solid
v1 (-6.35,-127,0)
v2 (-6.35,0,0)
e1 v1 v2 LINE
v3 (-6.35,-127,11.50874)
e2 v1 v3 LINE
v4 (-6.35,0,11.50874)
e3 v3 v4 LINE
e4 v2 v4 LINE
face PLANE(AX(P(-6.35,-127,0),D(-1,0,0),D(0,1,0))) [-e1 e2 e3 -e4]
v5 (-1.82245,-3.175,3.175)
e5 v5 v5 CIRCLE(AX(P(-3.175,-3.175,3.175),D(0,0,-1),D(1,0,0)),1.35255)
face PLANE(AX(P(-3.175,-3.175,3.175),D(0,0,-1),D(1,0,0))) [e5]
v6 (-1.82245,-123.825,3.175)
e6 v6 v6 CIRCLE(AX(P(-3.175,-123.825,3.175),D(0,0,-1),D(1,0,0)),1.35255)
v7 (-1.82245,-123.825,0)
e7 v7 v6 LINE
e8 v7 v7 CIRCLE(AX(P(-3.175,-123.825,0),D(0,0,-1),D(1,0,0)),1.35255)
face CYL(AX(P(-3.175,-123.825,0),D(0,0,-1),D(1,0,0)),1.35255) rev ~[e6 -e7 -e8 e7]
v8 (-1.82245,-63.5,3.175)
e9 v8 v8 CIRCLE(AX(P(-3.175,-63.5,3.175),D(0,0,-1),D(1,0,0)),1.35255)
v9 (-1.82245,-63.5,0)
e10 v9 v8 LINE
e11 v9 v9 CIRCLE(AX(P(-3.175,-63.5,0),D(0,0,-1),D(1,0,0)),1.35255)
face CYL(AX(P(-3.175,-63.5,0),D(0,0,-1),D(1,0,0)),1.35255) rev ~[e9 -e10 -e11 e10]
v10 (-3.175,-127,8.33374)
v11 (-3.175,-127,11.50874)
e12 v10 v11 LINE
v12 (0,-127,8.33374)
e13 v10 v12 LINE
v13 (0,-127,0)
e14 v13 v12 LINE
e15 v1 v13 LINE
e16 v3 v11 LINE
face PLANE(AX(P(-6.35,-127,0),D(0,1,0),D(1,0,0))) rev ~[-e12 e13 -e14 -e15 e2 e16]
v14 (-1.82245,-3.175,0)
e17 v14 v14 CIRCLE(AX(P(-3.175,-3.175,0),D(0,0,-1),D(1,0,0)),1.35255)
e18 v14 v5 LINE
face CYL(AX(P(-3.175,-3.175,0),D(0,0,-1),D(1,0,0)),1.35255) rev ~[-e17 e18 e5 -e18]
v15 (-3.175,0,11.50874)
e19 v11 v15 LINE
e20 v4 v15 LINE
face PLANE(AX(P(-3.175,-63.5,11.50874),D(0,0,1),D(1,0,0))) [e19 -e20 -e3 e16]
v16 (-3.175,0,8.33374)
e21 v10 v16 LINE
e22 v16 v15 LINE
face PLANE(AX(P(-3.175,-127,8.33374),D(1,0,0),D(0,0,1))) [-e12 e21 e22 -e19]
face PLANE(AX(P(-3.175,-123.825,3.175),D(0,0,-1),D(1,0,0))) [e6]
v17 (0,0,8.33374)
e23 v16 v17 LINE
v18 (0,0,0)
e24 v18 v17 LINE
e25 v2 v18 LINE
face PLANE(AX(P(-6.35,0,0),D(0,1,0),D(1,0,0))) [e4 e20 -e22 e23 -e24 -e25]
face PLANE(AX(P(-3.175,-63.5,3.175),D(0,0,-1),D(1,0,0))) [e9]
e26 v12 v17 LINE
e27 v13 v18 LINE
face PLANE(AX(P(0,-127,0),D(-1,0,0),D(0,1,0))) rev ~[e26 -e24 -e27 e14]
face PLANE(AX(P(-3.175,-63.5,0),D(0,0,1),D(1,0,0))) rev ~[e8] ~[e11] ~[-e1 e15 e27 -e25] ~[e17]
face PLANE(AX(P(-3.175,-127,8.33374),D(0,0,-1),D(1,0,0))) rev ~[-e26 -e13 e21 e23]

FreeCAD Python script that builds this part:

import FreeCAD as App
import Part
import Sketcher
Q = App.Units.Quantity

doc = App.newDocument("Part")
params = doc.addObject("Spreadsheet::Sheet", "Params")
for row, (alias, value) in enumerate([
    ("sketch1_height", "5 in"),
    ("sketch1_width", "0.25 in"),
    ("pad1_length", "0.4531 in"),
    ("sketch2_width", "0.125 in"),
    ("pocket2_length", "0.125 in"),
], start=1):
    params.set(f"A{row}", alias)
    params.set(f"B{row}", "=" + value)
    params.setAlias(f"B{row}", alias)

body = doc.addObject("PartDesign::Body", "Body")

# Sketch on XY plane
sketch1 = body.newObject("Sketcher::SketchObject", "Sketch")
sketch1.AttachmentSupport = (doc.getObject("XY_Plane"), [""])
sketch1.MapMode = "FlatFace"
sketch1.addGeometry(Part.LineSegment(App.Vector(-6.35, 0, 0), App.Vector(-6.35, -127, 0)), False)
sketch1.addGeometry(Part.LineSegment(App.Vector(-6.35, -127, 0), App.Vector(0, -127, 0)), False)
sketch1.addGeometry(Part.LineSegment(App.Vector(0, -127, 0), App.Vector(0, 0, 0)), False)
sketch1.addGeometry(Part.LineSegment(App.Vector(0, 0, 0), App.Vector(-6.35, 0, 0)), False)
sketch1.addConstraint(Sketcher.Constraint("Coincident", 0, 2, 1, 1))
sketch1.addConstraint(Sketcher.Constraint("Coincident", 1, 2, 2, 1))
sketch1.addConstraint(Sketcher.Constraint("Coincident", 2, 2, 3, 1))
sketch1.addConstraint(Sketcher.Constraint("Coincident", 3, 2, 0, 1))
sketch1.addConstraint(Sketcher.Constraint("Vertical", 0))
sketch1.addConstraint(Sketcher.Constraint("Horizontal", 1))
sketch1.addConstraint(Sketcher.Constraint("Vertical", 2))
sketch1.addConstraint(Sketcher.Constraint("Horizontal", 3))
sketch1.addConstraint(Sketcher.Constraint("Coincident", 2, 2, -1, 1))
sketch1.addConstraint(Sketcher.Constraint("DistanceY", 0, 2, 0, 1, Q("5 in")))
sketch1.addConstraint(Sketcher.Constraint("DistanceX", 1, 1, 1, 2, Q("0.25 in")))
sketch1.setExpression("Constraints[9]", "Params.sketch1_height")
sketch1.setExpression("Constraints[10]", "Params.sketch1_width")
pad1 = body.newObject("PartDesign::Pad", "Pad")
pad1.Profile = sketch1
pad1.setExpression("Length", "Params.pad1_length")

# Sketch on XZ plane
sketch2 = body.newObject("Sketcher::SketchObject", "Sketch001")
sketch2.AttachmentSupport = (doc.getObject("XZ_Plane"), [""])
sketch2.MapMode = "FlatFace"
sketch2.AttachmentOffset = App.Placement(App.Vector(0, 0, 5 * 25.4), App.Rotation())
sketch2.addGeometry(Part.LineSegment(App.Vector(-3.175, 11.50874, 0), App.Vector(-3.175, 8.33374, 0)), False)
sketch2.addGeometry(Part.LineSegment(App.Vector(-3.175, 8.33374, 0), App.Vector(0, 8.33374, 0)), False)
sketch2.addGeometry(Part.LineSegment(App.Vector(0, 8.33374, 0), App.Vector(0, 11.50874, 0)), False)
sketch2.addGeometry(Part.LineSegment(App.Vector(0, 11.50874, 0), App.Vector(-3.175, 11.50874, 0)), False)
sketch2.addConstraint(Sketcher.Constraint("Coincident", 0, 2, 1, 1))
sketch2.addConstraint(Sketcher.Constraint("Coincident", 1, 2, 2, 1))
sketch2.addConstraint(Sketcher.Constraint("Coincident", 2, 2, 3, 1))
sketch2.addConstraint(Sketcher.Constraint("Coincident", 3, 2, 0, 1))
sketch2.addConstraint(Sketcher.Constraint("Vertical", 0))
sketch2.addConstraint(Sketcher.Constraint("Horizontal", 1))
sketch2.addConstraint(Sketcher.Constraint("Vertical", 2))
sketch2.addConstraint(Sketcher.Constraint("Horizontal", 3))
sketch2.addConstraint(Sketcher.Constraint("PointOnObject", 1, 2, -2))
sketch2.addConstraint(Sketcher.Constraint("Equal", 3, 0))
sketch2.addConstraint(Sketcher.Constraint("DistanceX", 1, 1, 1, 2, Q("0.125 in")))
sketch2.addConstraint(Sketcher.Constraint("DistanceY", -1, 1, 0, 2, Q("0.3281 in")))
sketch2.setExpression("Constraints[10]", "Params.sketch2_width")
pocket1 = body.newObject("PartDesign::Pocket", "Pocket")
pocket1.Profile = sketch2
pocket1.Type = "ThroughAll"

# Sketch on XY plane
sketch3 = body.newObject("Sketcher::SketchObject", "Sketch002")
sketch3.AttachmentSupport = (doc.getObject("XY_Plane"), [""])
sketch3.MapMode = "FlatFace"
sketch3.addGeometry(Part.Circle(App.Vector(-3.175, -123.825, 0), App.Vector(0, 0, 1), 1.35255), False)
sketch3.addGeometry(Part.Circle(App.Vector(-3.175, -63.5, 0), App.Vector(0, 0, 1), 1.35255), False)
sketch3.addGeometry(Part.Circle(App.Vector(-3.175, -3.175, 0), App.Vector(0, 0, 1), 1.35255), False)
sketch3.addConstraint(Sketcher.Constraint("Equal", 0, 1))
sketch3.addConstraint(Sketcher.Constraint("Equal", 1, 2))
sketch3.addConstraint(Sketcher.Constraint("Vertical", 0, 3, 1, 3))
sketch3.addConstraint(Sketcher.Constraint("Vertical", 1, 3, 2, 3))
sketch3.addConstraint(Sketcher.Constraint("Diameter", 0, Q("0.1065 in")))
sketch3.addConstraint(Sketcher.Constraint("DistanceY", 1, 3, -1, 1, Q("2.5 in")))
sketch3.addConstraint(Sketcher.Constraint("DistanceY", 0, 3, 2, 3, Q("4.75 in")))
sketch3.addConstraint(Sketcher.Constraint("DistanceX", 0, 3, -1, 1, Q("0.125 in")))
sketch3.addConstraint(Sketcher.Constraint("DistanceY", 0, 3, -1, 1, Q("4.875 in")))
pocket2 = body.newObject("PartDesign::Pocket", "Pocket001")
pocket2.Profile = sketch3
pocket2.setExpression("Length", "Params.pocket2_length")
pocket2.Reversed = True

doc.recompute()
